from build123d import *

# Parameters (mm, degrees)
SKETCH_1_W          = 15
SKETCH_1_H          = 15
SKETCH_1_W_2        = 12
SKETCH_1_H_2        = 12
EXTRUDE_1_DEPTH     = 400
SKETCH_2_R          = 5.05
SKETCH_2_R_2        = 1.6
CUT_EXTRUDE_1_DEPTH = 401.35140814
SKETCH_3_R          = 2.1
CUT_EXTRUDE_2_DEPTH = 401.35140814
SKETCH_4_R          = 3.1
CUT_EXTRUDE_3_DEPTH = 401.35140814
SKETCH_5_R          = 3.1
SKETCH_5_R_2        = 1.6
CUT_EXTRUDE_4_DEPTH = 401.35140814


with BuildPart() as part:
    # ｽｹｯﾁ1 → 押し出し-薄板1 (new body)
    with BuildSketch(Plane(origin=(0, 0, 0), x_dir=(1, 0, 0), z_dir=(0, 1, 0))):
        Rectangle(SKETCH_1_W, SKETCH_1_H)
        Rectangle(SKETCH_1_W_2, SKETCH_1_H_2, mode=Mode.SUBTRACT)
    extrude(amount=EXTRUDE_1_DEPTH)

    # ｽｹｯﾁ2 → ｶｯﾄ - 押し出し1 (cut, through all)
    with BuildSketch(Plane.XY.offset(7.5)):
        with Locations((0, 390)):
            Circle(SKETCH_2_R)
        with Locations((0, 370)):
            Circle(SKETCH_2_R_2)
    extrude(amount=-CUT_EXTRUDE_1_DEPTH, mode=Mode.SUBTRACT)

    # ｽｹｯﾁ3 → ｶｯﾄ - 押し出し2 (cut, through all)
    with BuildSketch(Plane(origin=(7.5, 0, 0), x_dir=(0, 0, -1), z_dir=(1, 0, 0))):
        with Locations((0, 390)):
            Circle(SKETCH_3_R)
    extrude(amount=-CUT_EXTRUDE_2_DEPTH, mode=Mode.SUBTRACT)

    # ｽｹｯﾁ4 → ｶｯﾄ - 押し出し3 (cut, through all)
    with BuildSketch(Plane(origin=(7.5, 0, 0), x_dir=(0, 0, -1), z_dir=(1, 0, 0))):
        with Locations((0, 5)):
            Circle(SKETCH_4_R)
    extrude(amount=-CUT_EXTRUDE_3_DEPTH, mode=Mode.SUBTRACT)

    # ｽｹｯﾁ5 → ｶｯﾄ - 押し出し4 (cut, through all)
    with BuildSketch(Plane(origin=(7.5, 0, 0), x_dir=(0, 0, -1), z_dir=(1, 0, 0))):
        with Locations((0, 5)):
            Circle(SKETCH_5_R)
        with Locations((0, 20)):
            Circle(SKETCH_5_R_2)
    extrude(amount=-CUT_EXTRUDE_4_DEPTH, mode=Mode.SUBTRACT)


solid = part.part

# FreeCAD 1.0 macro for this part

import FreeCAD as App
import Part
import Sketcher
from FreeCAD import Vector


def add_polygon(sketch, points):
    """Adds a closed chain of lines whose ends are joined by coincident constraints."""
    first, n = sketch.GeometryCount, len(points)
    for a, b in zip(points, points[1:] + points[:1]):
        sketch.addGeometry(Part.LineSegment(App.Vector(*a, 0), App.Vector(*b, 0)), False)
    for i in range(n):
        sketch.addConstraint(Sketcher.Constraint("Coincident", first + i, 2, first + (i + 1) % n, 1))

doc = App.newDocument("Part")
body = doc.addObject("PartDesign::Body", "Body")

# Sketch on XZ plane
sketch1 = doc.addObject("Sketcher::SketchObject", "Sketch")
body.addObject(sketch1)
sketch1.AttachmentSupport = (doc.XZ_Plane, [""])
sketch1.MapMode = "FlatFace"
add_polygon(sketch1, [(-8, -8), (-8, 8), (8, 8), (8, -8)])  # lines 0-3
add_polygon(sketch1, [(6, 6), (-6, 6), (-6, -6), (6, -6)])  # lines 4-7
sketch1.addConstraint([
    Sketcher.Constraint("Vertical", 0),
    Sketcher.Constraint("Horizontal", 1),
    Sketcher.Constraint("Vertical", 2),
    Sketcher.Constraint("Horizontal", 3),
    Sketcher.Constraint("Horizontal", 4),
    Sketcher.Constraint("Vertical", 5),
    Sketcher.Constraint("Horizontal", 6),
    Sketcher.Constraint("Vertical", 7),
    Sketcher.Constraint("Symmetric", 0, 2, 2, 2, -1, 1),
    Sketcher.Constraint("Symmetric", 4, 2, 6, 2, -1, 1),
    Sketcher.Constraint("Equal", 3, 0),
    Sketcher.Constraint("Equal", 6, 5),
    Sketcher.Constraint("DistanceX", 1, 1, 1, 2, 15.0),
    Sketcher.Constraint("DistanceX", 4, 2, 4, 1, 12.0),
])
pad1 = doc.addObject("PartDesign::Pad", "Pad")
body.addObject(pad1)
pad1.Profile = sketch1
pad1.Length = 400
pad1.Reversed = True

# Sketch on XY plane
sketch2 = doc.addObject("Sketcher::SketchObject", "Sketch001")
body.addObject(sketch2)
sketch2.AttachmentSupport = (doc.XY_Plane, [""])
sketch2.MapMode = "FlatFace"
sketch2.AttachmentOffset = App.Placement(Vector(0, 0, 7.5), App.Rotation())
sketch2.addGeometry([
    Part.Circle(Vector(0, 390, 0), Vector(0, 0, 1), 5),
    Part.Circle(Vector(0, 370, 0), Vector(0, 0, 1), 1.6),
], False)
sketch2.addConstraint([
    Sketcher.Constraint("PointOnObject", 0, 3, -2),
    Sketcher.Constraint("PointOnObject", 1, 3, -2),
    Sketcher.Constraint("Diameter", 0, 10.1),
    Sketcher.Constraint("Diameter", 1, 3.2),
    Sketcher.Constraint("DistanceY", -1, 1, 0, 3, 390.0),
    Sketcher.Constraint("DistanceY", -1, 1, 1, 3, 370.0),
])
pocket1 = doc.addObject("PartDesign::Pocket", "Pocket")
body.addObject(pocket1)
pocket1.Profile = sketch2
pocket1.Type = "ThroughAll"

# Sketch on YZ plane
sketch3 = doc.addObject("Sketcher::SketchObject", "Sketch002")
body.addObject(sketch3)
sketch3.AttachmentSupport = (doc.YZ_Plane, [""])
sketch3.MapMode = "FlatFace"
sketch3.AttachmentOffset = App.Placement(Vector(0, 0, 7.5), App.Rotation())
sketch3.addGeometry(Part.Circle(Vector(390, 0, 0), Vector(0, 0, 1), 2.1), False)
sketch3.addConstraint([
    Sketcher.Constraint("PointOnObject", 0, 3, -1),
    Sketcher.Constraint("Diameter", 0, 4.2),
    Sketcher.Constraint("DistanceX", -1, 1, 0, 3, 390.0),
])
pocket2 = doc.addObject("PartDesign::Pocket", "Pocket001")
body.addObject(pocket2)
pocket2.Profile = sketch3
pocket2.Type = "ThroughAll"

# Sketch on YZ plane
sketch4 = doc.addObject("Sketcher::SketchObject", "Sketch003")
body.addObject(sketch4)
sketch4.AttachmentSupport = (doc.YZ_Plane, [""])
sketch4.MapMode = "FlatFace"
sketch4.AttachmentOffset = App.Placement(Vector(0, 0, 7.5), App.Rotation())
sketch4.addGeometry(Part.Circle(Vector(5, 0, 0), Vector(0, 0, 1), 3.1), False)
sketch4.addConstraint([
    Sketcher.Constraint("PointOnObject", 0, 3, -1),
    Sketcher.Constraint("Diameter", 0, 6.2),
    Sketcher.Constraint("DistanceX", -1, 1, 0, 3, 5.0),
])
pocket3 = doc.addObject("PartDesign::Pocket", "Pocket002")
body.addObject(pocket3)
pocket3.Profile = sketch4
pocket3.Type = "ThroughAll"

# Sketch on YZ plane
sketch5 = doc.addObject("Sketcher::SketchObject", "Sketch004")
body.addObject(sketch5)
sketch5.AttachmentSupport = (doc.YZ_Plane, [""])
sketch5.MapMode = "FlatFace"
sketch5.AttachmentOffset = App.Placement(Vector(0, 0, 7.5), App.Rotation())
sketch5.addGeometry([
    Part.Circle(Vector(5, 0, 0), Vector(0, 0, 1), 3.1),
    Part.Circle(Vector(20, 0, 0), Vector(0, 0, 1), 1.6),
], False)
sketch5.addConstraint([
    Sketcher.Constraint("PointOnObject", 0, 3, -1),
    Sketcher.Constraint("PointOnObject", 1, 3, -1),
    Sketcher.Constraint("Diameter", 0, 6.2),
    Sketcher.Constraint("Diameter", 1, 3.2),
    Sketcher.Constraint("DistanceX", -1, 1, 0, 3, 5.0),
    Sketcher.Constraint("DistanceX", -1, 1, 1, 3, 20.0),
])
pocket4 = doc.addObject("PartDesign::Pocket", "Pocket003")
body.addObject(pocket4)
pocket4.Profile = sketch5
pocket4.Type = "ThroughAll"

doc.recompute()
